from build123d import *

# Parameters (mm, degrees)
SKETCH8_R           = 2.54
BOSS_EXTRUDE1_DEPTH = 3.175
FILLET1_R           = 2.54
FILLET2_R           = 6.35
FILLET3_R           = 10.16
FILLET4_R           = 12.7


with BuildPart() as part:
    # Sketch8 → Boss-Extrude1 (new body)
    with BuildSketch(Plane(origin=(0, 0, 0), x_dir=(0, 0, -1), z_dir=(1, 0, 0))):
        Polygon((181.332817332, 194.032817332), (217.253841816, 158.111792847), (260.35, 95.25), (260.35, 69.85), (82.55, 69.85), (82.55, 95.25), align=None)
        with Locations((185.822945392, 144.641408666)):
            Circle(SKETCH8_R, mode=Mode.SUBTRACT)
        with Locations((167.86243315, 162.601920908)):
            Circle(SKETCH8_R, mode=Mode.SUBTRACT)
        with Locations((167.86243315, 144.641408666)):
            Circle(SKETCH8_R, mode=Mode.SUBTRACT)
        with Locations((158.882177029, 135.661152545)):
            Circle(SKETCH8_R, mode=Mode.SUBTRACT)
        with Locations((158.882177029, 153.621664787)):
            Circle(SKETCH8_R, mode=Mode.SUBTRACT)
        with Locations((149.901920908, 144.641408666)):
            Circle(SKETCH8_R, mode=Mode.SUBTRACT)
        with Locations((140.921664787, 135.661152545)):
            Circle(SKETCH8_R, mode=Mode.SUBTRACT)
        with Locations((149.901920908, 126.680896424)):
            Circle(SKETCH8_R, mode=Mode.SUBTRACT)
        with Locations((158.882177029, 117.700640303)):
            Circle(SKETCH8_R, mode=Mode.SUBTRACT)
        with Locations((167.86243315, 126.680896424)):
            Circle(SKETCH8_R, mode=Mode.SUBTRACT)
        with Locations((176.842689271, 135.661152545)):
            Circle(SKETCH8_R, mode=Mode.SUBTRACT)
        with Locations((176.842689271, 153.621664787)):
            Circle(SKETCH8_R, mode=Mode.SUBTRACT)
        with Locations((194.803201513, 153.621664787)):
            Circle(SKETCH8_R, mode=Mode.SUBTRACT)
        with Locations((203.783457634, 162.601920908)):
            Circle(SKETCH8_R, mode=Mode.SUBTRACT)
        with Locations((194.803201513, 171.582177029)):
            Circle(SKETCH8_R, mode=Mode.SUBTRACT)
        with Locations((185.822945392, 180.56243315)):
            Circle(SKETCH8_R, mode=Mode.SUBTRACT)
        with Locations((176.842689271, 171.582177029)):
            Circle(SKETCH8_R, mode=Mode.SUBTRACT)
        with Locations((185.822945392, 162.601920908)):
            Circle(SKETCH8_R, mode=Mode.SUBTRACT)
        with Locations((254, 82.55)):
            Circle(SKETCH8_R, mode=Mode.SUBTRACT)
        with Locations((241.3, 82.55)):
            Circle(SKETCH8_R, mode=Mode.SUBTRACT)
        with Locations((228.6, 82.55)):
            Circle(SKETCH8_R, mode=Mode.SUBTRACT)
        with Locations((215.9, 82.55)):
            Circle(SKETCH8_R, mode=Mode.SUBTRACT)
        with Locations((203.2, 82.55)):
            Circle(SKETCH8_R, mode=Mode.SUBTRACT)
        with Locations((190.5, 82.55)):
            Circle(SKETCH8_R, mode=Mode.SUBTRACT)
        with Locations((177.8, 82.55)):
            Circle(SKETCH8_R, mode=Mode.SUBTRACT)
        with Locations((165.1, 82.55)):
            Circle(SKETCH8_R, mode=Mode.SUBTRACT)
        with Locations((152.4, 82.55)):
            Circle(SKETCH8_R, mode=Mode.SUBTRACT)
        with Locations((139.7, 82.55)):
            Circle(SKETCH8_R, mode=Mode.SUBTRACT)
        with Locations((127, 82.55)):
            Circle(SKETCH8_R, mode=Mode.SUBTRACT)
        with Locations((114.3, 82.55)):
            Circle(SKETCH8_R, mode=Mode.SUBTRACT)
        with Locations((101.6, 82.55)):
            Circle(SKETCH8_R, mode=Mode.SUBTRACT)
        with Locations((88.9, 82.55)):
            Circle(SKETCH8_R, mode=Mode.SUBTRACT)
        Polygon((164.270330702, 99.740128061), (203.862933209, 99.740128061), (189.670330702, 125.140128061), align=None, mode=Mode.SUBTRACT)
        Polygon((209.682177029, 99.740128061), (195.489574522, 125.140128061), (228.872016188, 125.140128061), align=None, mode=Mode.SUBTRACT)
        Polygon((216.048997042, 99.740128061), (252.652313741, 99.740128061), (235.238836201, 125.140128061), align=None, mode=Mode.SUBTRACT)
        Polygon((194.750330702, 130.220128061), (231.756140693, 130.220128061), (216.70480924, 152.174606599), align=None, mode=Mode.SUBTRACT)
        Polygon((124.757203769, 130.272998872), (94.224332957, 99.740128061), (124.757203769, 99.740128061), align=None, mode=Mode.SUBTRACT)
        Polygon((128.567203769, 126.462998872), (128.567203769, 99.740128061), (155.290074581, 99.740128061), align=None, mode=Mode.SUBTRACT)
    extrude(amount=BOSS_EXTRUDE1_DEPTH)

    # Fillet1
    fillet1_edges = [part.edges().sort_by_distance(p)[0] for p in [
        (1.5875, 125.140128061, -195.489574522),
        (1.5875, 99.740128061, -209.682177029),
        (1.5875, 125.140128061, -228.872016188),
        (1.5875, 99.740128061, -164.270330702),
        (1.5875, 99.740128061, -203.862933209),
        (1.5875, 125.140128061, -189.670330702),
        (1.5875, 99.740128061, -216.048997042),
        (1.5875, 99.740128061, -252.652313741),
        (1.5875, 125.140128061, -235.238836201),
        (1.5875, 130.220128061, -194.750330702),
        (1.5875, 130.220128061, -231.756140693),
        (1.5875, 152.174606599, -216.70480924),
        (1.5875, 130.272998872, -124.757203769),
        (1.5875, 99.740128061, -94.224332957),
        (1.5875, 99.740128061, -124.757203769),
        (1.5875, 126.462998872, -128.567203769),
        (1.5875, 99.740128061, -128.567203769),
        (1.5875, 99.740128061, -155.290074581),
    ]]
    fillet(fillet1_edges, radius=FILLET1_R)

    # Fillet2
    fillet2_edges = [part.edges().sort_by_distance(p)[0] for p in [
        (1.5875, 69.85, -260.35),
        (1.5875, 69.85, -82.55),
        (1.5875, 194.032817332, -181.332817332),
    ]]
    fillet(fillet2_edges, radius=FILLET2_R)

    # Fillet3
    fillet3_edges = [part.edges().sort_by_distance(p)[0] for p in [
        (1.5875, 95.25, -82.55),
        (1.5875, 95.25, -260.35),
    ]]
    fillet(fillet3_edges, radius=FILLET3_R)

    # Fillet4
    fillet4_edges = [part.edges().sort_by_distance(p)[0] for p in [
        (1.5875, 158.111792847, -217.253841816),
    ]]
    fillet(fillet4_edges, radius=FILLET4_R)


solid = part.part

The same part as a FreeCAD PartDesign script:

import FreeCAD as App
import Part
import Sketcher
Q = App.Units.Quantity


def edges_at(feature, points):
    """Names of the edges that pass closest to the given points."""
    edges = feature.Shape.Edges
    near = lambda p: min(range(len(edges)), key=lambda i: edges[i].distToShape(Part.Vertex(*p))[0])
    return sorted({f"Edge{near(p) + 1}" for p in points})

doc = App.newDocument("Part")
body = doc.addObject("PartDesign::Body", "Body")

sketch1 = body.newObject("Sketcher::SketchObject", "Sketch")
sketch1.AttachmentSupport = (doc.getObject("YZ_Plane"), [""])
sketch1.MapMode = "FlatFace"
sketch1.addGeometry(Part.LineSegment(App.Vector(158.1, -217.3, 0), App.Vector(194, -181.3, 0)), False)
sketch1.addGeometry(Part.LineSegment(App.Vector(194, -181.3, 0), App.Vector(95.2, -82.5, 0)), False)
sketch1.addGeometry(Part.LineSegment(App.Vector(95.2, -82.5, 0), App.Vector(69.8, -82.5, 0)), False)
sketch1.addGeometry(Part.LineSegment(App.Vector(69.8, -82.5, 0), App.Vector(69.8, -260.4, 0)), False)
sketch1.addGeometry(Part.LineSegment(App.Vector(69.8, -260.4, 0), App.Vector(95.2, -260.4, 0)), False)
sketch1.addGeometry(Part.LineSegment(App.Vector(95.2, -260.4, 0), App.Vector(158.1, -217.3, 0)), False)
sketch1.addGeometry(Part.Circle(App.Vector(82.5, -254, 0), App.Vector(0, 0, 1), 2.5), False)
sketch1.addGeometry(Part.Circle(App.Vector(82.5, -241.3, 0), App.Vector(0, 0, 1), 2.5), False)
sketch1.addGeometry(Part.Circle(App.Vector(82.5, -228.6, 0), App.Vector(0, 0, 1), 2.5), False)
sketch1.addGeometry(Part.Circle(App.Vector(82.5, -215.9, 0), App.Vector(0, 0, 1), 2.5), False)
sketch1.addGeometry(Part.Circle(App.Vector(82.5, -203.2, 0), App.Vector(0, 0, 1), 2.5), False)
sketch1.addGeometry(Part.Circle(App.Vector(82.5, -190.5, 0), App.Vector(0, 0, 1), 2.5), False)
sketch1.addGeometry(Part.Circle(App.Vector(82.5, -177.8, 0), App.Vector(0, 0, 1), 2.5), False)
sketch1.addGeometry(Part.LineSegment(App.Vector(99.7, -216, 0), App.Vector(125.1, -235.2, 0)), False)
sketch1.addGeometry(Part.LineSegment(App.Vector(125.1, -235.2, 0), App.Vector(99.7, -252.7, 0)), False)
sketch1.addGeometry(Part.LineSegment(App.Vector(99.7, -252.7, 0), App.Vector(99.7, -216, 0)), False)
sketch1.addGeometry(Part.LineSegment(App.Vector(99.7, -209.7, 0), App.Vector(125.1, -195.5, 0)), False)
sketch1.addGeometry(Part.LineSegment(App.Vector(125.1, -195.5, 0), App.Vector(125.1, -228.9, 0)), False)
sketch1.addGeometry(Part.LineSegment(App.Vector(125.1, -228.9, 0), App.Vector(99.7, -209.7, 0)), False)
sketch1.addGeometry(Part.LineSegment(App.Vector(99.7, -164.3, 0), App.Vector(125.1, -189.7, 0)), False)
sketch1.addGeometry(Part.LineSegment(App.Vector(125.1, -189.7, 0), App.Vector(99.7, -203.9, 0)), False)
sketch1.addGeometry(Part.LineSegment(App.Vector(99.7, -203.9, 0), App.Vector(99.7, -164.3, 0)), False)
sketch1.addGeometry(Part.Circle(App.Vector(82.5, -165.1, 0), App.Vector(0, 0, 1), 2.5), False)
sketch1.addGeometry(Part.Circle(App.Vector(82.5, -152.4, 0), App.Vector(0, 0, 1), 2.5), False)
sketch1.addGeometry(Part.Circle(App.Vector(82.5, -139.7, 0), App.Vector(0, 0, 1), 2.5), False)
sketch1.addGeometry(Part.Circle(App.Vector(82.5, -127, 0), App.Vector(0, 0, 1), 2.5), False)
sketch1.addGeometry(Part.Circle(App.Vector(82.5, -114.3, 0), App.Vector(0, 0, 1), 2.5), False)
sketch1.addGeometry(Part.Circle(App.Vector(82.5, -101.6, 0), App.Vector(0, 0, 1), 2.5), False)
sketch1.addGeometry(Part.Circle(App.Vector(82.5, -88.9, 0), App.Vector(0, 0, 1), 2.5), False)
sketch1.addGeometry(Part.Circle(App.Vector(117.7, -158.9, 0), App.Vector(0, 0, 1), 2.5), False)
sketch1.addGeometry(Part.LineSegment(App.Vector(126.5, -128.6, 0), App.Vector(99.7, -155.3, 0)), False)
sketch1.addGeometry(Part.LineSegment(App.Vector(99.7, -155.3, 0), App.Vector(99.7, -128.6, 0)), False)
sketch1.addGeometry(Part.LineSegment(App.Vector(99.7, -128.6, 0), App.Vector(126.5, -128.6, 0)), False)
sketch1.addGeometry(Part.Circle(App.Vector(126.7, -167.9, 0), App.Vector(0, 0, 1), 2.5), False)
sketch1.addGeometry(Part.Circle(App.Vector(126.7, -149.9, 0), App.Vector(0, 0, 1), 2.5), False)
sketch1.addGeometry(Part.LineSegment(App.Vector(130.3, -124.8, 0), App.Vector(99.7, -124.8, 0)), False)
sketch1.addGeometry(Part.LineSegment(App.Vector(99.7, -124.8, 0), App.Vector(99.7, -94.2, 0)), False)
sketch1.addGeometry(Part.LineSegment(App.Vector(99.7, -94.2, 0), App.Vector(130.3, -124.8, 0)), False)
sketch1.addGeometry(Part.LineSegment(App.Vector(130.2, -194.8, 0), App.Vector(152.2, -216.7, 0)), False)
sketch1.addGeometry(Part.LineSegment(App.Vector(152.2, -216.7, 0), App.Vector(130.2, -231.8, 0)), False)
sketch1.addGeometry(Part.LineSegment(App.Vector(130.2, -231.8, 0), App.Vector(130.2, -194.8, 0)), False)
sketch1.addGeometry(Part.Circle(App.Vector(135.7, -176.8, 0), App.Vector(0, 0, 1), 2.5), False)
sketch1.addGeometry(Part.Circle(App.Vector(153.6, -194.8, 0), App.Vector(0, 0, 1), 2.5), False)
sketch1.addGeometry(Part.Circle(App.Vector(144.6, -185.8, 0), App.Vector(0, 0, 1), 2.5), False)
sketch1.addGeometry(Part.Circle(App.Vector(153.6, -176.8, 0), App.Vector(0, 0, 1), 2.5), False)
sketch1.addGeometry(Part.Circle(App.Vector(162.6, -203.8, 0), App.Vector(0, 0, 1), 2.5), False)
sketch1.addGeometry(Part.Circle(App.Vector(162.6, -185.8, 0), App.Vector(0, 0, 1), 2.5), False)
sketch1.addGeometry(Part.Circle(App.Vector(171.6, -194.8, 0), App.Vector(0, 0, 1), 2.5), False)
sketch1.addGeometry(Part.Circle(App.Vector(171.6, -176.8, 0), App.Vector(0, 0, 1), 2.5), False)
sketch1.addGeometry(Part.Circle(App.Vector(180.6, -185.8, 0), App.Vector(0, 0, 1), 2.5), False)
sketch1.addGeometry(Part.Circle(App.Vector(135.7, -158.9, 0), App.Vector(0, 0, 1), 2.5), False)
sketch1.addGeometry(Part.Circle(App.Vector(135.7, -140.9, 0), App.Vector(0, 0, 1), 2.5), False)
sketch1.addGeometry(Part.Circle(App.Vector(144.6, -167.9, 0), App.Vector(0, 0, 1), 2.5), False)
sketch1.addGeometry(Part.Circle(App.Vector(153.6, -158.9, 0), App.Vector(0, 0, 1), 2.5), False)
sketch1.addGeometry(Part.Circle(App.Vector(144.6, -149.9, 0), App.Vector(0, 0, 1), 2.5), False)
sketch1.addGeometry(Part.Circle(App.Vector(162.6, -167.9, 0), App.Vector(0, 0, 1), 2.5), False)
sketch1.addConstraint(Sketcher.Constraint("Coincident", 0, 2, 1, 1))
sketch1.addConstraint(Sketcher.Constraint("Coincident", 1, 2, 2, 1))
sketch1.addConstraint(Sketcher.Constraint("Coincident", 2, 2, 3, 1))
sketch1.addConstraint(Sketcher.Constraint("Coincident", 3, 2, 4, 1))
sketch1.addConstraint(Sketcher.Constraint("Coincident", 4, 2, 5, 1))
sketch1.addConstraint(Sketcher.Constraint("Coincident", 5, 2, 0, 1))
sketch1.addConstraint(Sketcher.Constraint("Coincident", 13, 2, 14, 1))
sketch1.addConstraint(Sketcher.Constraint("Coincident", 14, 2, 15, 1))
sketch1.addConstraint(Sketcher.Constraint("Coincident", 15, 2, 13, 1))
sketch1.addConstraint(Sketcher.Constraint("Coincident", 16, 2, 17, 1))
sketch1.addConstraint(Sketcher.Constraint("Coincident", 17, 2, 18, 1))
sketch1.addConstraint(Sketcher.Constraint("Coincident", 18, 2, 16, 1))
sketch1.addConstraint(Sketcher.Constraint("Coincident", 19, 2, 20, 1))
sketch1.addConstraint(Sketcher.Constraint("Coincident", 20, 2, 21, 1))
sketch1.addConstraint(Sketcher.Constraint("Coincident", 21, 2, 19, 1))
sketch1.addConstraint(Sketcher.Constraint("Coincident", 30, 2, 31, 1))
sketch1.addConstraint(Sketcher.Constraint("Coincident", 31, 2, 32, 1))
sketch1.addConstraint(Sketcher.Constraint("Coincident", 32, 2, 30, 1))
sketch1.addConstraint(Sketcher.Constraint("Coincident", 35, 2, 36, 1))
sketch1.addConstraint(Sketcher.Constraint("Coincident", 36, 2, 37, 1))
sketch1.addConstraint(Sketcher.Constraint("Coincident", 37, 2, 35, 1))
sketch1.addConstraint(Sketcher.Constraint("Coincident", 38, 2, 39, 1))
sketch1.addConstraint(Sketcher.Constraint("Coincident", 39, 2, 40, 1))
sketch1.addConstraint(Sketcher.Constraint("Coincident", 40, 2, 38, 1))
sketch1.addConstraint(Sketcher.Constraint("Horizontal", 2))
sketch1.addConstraint(Sketcher.Constraint("Vertical", 3))
sketch1.addConstraint(Sketcher.Constraint("Horizontal", 4))
sketch1.addConstraint(Sketcher.Constraint("Vertical", 15))
sketch1.addConstraint(Sketcher.Constraint("Vertical", 17))
sketch1.addConstraint(Sketcher.Constraint("Vertical", 21))
sketch1.addConstraint(Sketcher.Constraint("Vertical", 31))
sketch1.addConstraint(Sketcher.Constraint("Horizontal", 32))
sketch1.addConstraint(Sketcher.Constraint("Horizontal", 35))
sketch1.addConstraint(Sketcher.Constraint("Vertical", 36))
sketch1.addConstraint(Sketcher.Constraint("Vertical", 40))
sketch1.addConstraint(Sketcher.Constraint("Equal", 6, 7))
sketch1.addConstraint(Sketcher.Constraint("Equal", 7, 8))
sketch1.addConstraint(Sketcher.Constraint("Equal", 8, 9))
sketch1.addConstraint(Sketcher.Constraint("Equal", 9, 10))
sketch1.addConstraint(Sketcher.Constraint("Equal", 10, 11))
sketch1.addConstraint(Sketcher.Constraint("Equal", 11, 12))
sketch1.addConstraint(Sketcher.Constraint("Equal", 12, 22))
sketch1.addConstraint(Sketcher.Constraint("Equal", 22, 23))
sketch1.addConstraint(Sketcher.Constraint("Equal", 23, 24))
sketch1.addConstraint(Sketcher.Constraint("Equal", 24, 25))
sketch1.addConstraint(Sketcher.Constraint("Equal", 25, 26))
sketch1.addConstraint(Sketcher.Constraint("Equal", 26, 27))
sketch1.addConstraint(Sketcher.Constraint("Equal", 27, 28))
sketch1.addConstraint(Sketcher.Constraint("Equal", 28, 29))
sketch1.addConstraint(Sketcher.Constraint("Equal", 29, 33))
sketch1.addConstraint(Sketcher.Constraint("Equal", 33, 34))
sketch1.addConstraint(Sketcher.Constraint("Equal", 34, 41))
sketch1.addConstraint(Sketcher.Constraint("Equal", 41, 42))
sketch1.addConstraint(Sketcher.Constraint("Equal", 42, 43))
sketch1.addConstraint(Sketcher.Constraint("Equal", 43, 44))
sketch1.addConstraint(Sketcher.Constraint("Equal", 44, 45))
sketch1.addConstraint(Sketcher.Constraint("Equal", 45, 46))
sketch1.addConstraint(Sketcher.Constraint("Equal", 46, 47))
sketch1.addConstraint(Sketcher.Constraint("Equal", 47, 48))
sketch1.addConstraint(Sketcher.Constraint("Equal", 48, 49))
sketch1.addConstraint(Sketcher.Constraint("Equal", 49, 50))
sketch1.addConstraint(Sketcher.Constraint("Equal", 50, 51))
sketch1.addConstraint(Sketcher.Constraint("Equal", 51, 52))
sketch1.addConstraint(Sketcher.Constraint("Equal", 52, 53))
sketch1.addConstraint(Sketcher.Constraint("Equal", 53, 54))
sketch1.addConstraint(Sketcher.Constraint("Equal", 54, 55))
sketch1.addConstraint(Sketcher.Constraint("Perpendicular", 0, 1))
sketch1.addConstraint(Sketcher.Constraint("Parallel", 5, 14))
sketch1.addConstraint(Sketcher.Constraint("Parallel", 13, 18))
sketch1.addConstraint(Sketcher.Constraint("Parallel", 1, 19))
sketch1.addConstraint(Sketcher.Constraint("Parallel", 16, 20))
sketch1.addConstraint(Sketcher.Constraint("Perpendicular", 19, 30))
sketch1.addConstraint(Sketcher.Constraint("Perpendicular", 30, 37))
sketch1.addConstraint(Sketcher.Constraint("Parallel", 37, 38))
sketch1.addConstraint(Sketcher.Constraint("Parallel", 14, 39))
sketch1.addConstraint(Sketcher.Constraint("Horizontal", 41, 3, 44, 3))
sketch1.addConstraint(Sketcher.Constraint("Horizontal", 43, 3, 46, 3))
sketch1.addConstraint(Sketcher.Constraint("Horizontal", 42, 3, 47, 3))
sketch1.addConstraint(Sketcher.Constraint("Horizontal", 44, 3, 48, 3))
sketch1.addConstraint(Sketcher.Constraint("Horizontal", 46, 3, 49, 3))
sketch1.addConstraint(Sketcher.Constraint("Horizontal", 29, 3, 50, 3))
sketch1.addConstraint(Sketcher.Constraint("Horizontal", 33, 3, 52, 3))
sketch1.addConstraint(Sketcher.Constraint("Horizontal", 50, 3, 53, 3))
sketch1.addConstraint(Sketcher.Constraint("Horizontal", 34, 3, 54, 3))
sketch1.addConstraint(Sketcher.Constraint("Horizontal", 52, 3, 55, 3))
sketch1.addConstraint(Sketcher.Constraint("Vertical", 6, 3, 7, 3))
sketch1.addConstraint(Sketcher.Constraint("Vertical", 7, 3, 8, 3))
sketch1.addConstraint(Sketcher.Constraint("Vertical", 8, 3, 9, 3))
sketch1.addConstraint(Sketcher.Constraint("Vertical", 9, 3, 10, 3))
sketch1.addConstraint(Sketcher.Constraint("Vertical", 10, 3, 11, 3))
sketch1.addConstraint(Sketcher.Constraint("Vertical", 11, 3, 12, 3))
sketch1.addConstraint(Sketcher.Constraint("Vertical", 12, 3, 22, 3))
sketch1.addConstraint(Sketcher.Constraint("Vertical", 22, 3, 23, 3))
sketch1.addConstraint(Sketcher.Constraint("Vertical", 23, 3, 24, 3))
sketch1.addConstraint(Sketcher.Constraint("Vertical", 24, 3, 25, 3))
sketch1.addConstraint(Sketcher.Constraint("Vertical", 25, 3, 26, 3))
sketch1.addConstraint(Sketcher.Constraint("Vertical", 26, 3, 27, 3))
sketch1.addConstraint(Sketcher.Constraint("Vertical", 27, 3, 28, 3))
sketch1.addConstraint(Sketcher.Constraint("Vertical", 33, 3, 34, 3))
sketch1.addConstraint(Sketcher.Constraint("Vertical", 42, 3, 44, 3))
sketch1.addConstraint(Sketcher.Constraint("Vertical", 45, 3, 46, 3))
sketch1.addConstraint(Sketcher.Constraint("Vertical", 47, 3, 48, 3))
sketch1.addConstraint(Sketcher.Constraint("Vertical", 41, 3, 50, 3))
sketch1.addConstraint(Sketcher.Constraint("Vertical", 50, 3, 51, 3))
sketch1.addConstraint(Sketcher.Constraint("Vertical", 43, 3, 52, 3))
sketch1.addConstraint(Sketcher.Constraint("Vertical", 44, 3, 53, 3))
sketch1.addConstraint(Sketcher.Constraint("Vertical", 52, 3, 54, 3))
sketch1.addConstraint(Sketcher.Constraint("Vertical", 46, 3, 55, 3))
sketch1.addConstraint(Sketcher.Constraint("Vertical", 1, 2, 4, 2))
sketch1.addConstraint(Sketcher.Constraint("Vertical", 13, 2, 16, 2))
sketch1.addConstraint(Sketcher.Constraint("Vertical", 15, 2, 18, 2))
sketch1.addConstraint(Sketcher.Constraint("Vertical", 17, 2, 19, 2))
sketch1.addConstraint(Sketcher.Constraint("Vertical", 18, 2, 20, 2))
sketch1.addConstraint(Sketcher.Constraint("Vertical", 21, 2, 30, 2))
sketch1.addConstraint(Sketcher.Constraint("Vertical", 31, 2, 35, 2))
sketch1.addConstraint(Sketcher.Constraint("Equal", 32, 31))
sketch1.addConstraint(Sketcher.Constraint("Diameter", 6, Q("0.2 in")))
sketch1.addConstraint(Sketcher.Constraint("DistanceX", 2, 2, 2, 1, Q("1 in")))
sketch1.addConstraint(Sketcher.Constraint("DistanceY", 3, 2, 3, 1, Q("7 in")))
sketch1.addConstraint(Sketcher.Constraint("Distance", 0, Q("2 in")))
sketch1.addConstraint(Sketcher.Constraint("DistanceY", 6, 3, -1, 1, Q("10 in")))
sketch1.addConstraint(Sketcher.Constraint("DistanceY", 8, 3, -1, 1, Q("9 in")))
sketch1.addConstraint(Sketcher.Constraint("DistanceY", 10, 3, -1, 1, Q("8 in")))
sketch1.addConstraint(Sketcher.Constraint("DistanceY", 12, 3, -1, 1, Q("7 in")))
sketch1.addConstraint(Sketcher.Constraint("DistanceY", 23, 3, -1, 1, Q("6 in")))
sketch1.addConstraint(Sketcher.Constraint("DistanceY", 25, 3, -1, 1, Q("5 in")))
sketch1.addConstraint(Sketcher.Constraint("DistanceY", 27, 3, -1, 1, Q("4 in")))
sketch1.addConstraint(Sketcher.Constraint("DistanceY", 7, 3, 9, 3, Q("1 in")))
sketch1.addConstraint(Sketcher.Constraint("DistanceY", 9, 3, 11, 3, Q("1 in")))
sketch1.addConstraint(Sketcher.Constraint("DistanceY", 11, 3, 22, 3, Q("1 in")))
sketch1.addConstraint(Sketcher.Constraint("DistanceY", 22, 3, 24, 3, Q("1 in")))
sketch1.addConstraint(Sketcher.Constraint("DistanceY", 24, 3, 26, 3, Q("1 in")))
sketch1.addConstraint(Sketcher.Constraint("DistanceY", 26, 3, 28, 3, Q("1 in")))
sketch1.addConstraint(Sketcher.Constraint("DistanceX", 14, 2, 13, 2, Q("1 in")))
sketch1.addConstraint(Sketcher.Constraint("Distance", 1, Q("5.5 in")))
sketch1.addConstraint(Sketcher.Constraint("Distance", 37, Q("1.7 in")))
sketch1.addConstraint(Sketcher.Constraint("DistanceY", 7, 3, -1, 1, Q("9.5 in")))
sketch1.addConstraint(Sketcher.Constraint("DistanceX", 28, 3, 1, 2, Q("0.5 in")))
sketch1.addConstraint(Sketcher.Constraint("DistanceX", 17, 2, 39, 2, Q("0.2 in")))
sketch1.addConstraint(Sketcher.Constraint("DistanceY", 40, 2, 19, 2, Q("0.2 in")))
sketch1.addConstraint(Sketcher.Constraint("DistanceX", -1, 1, 6, 3, Q("3.25 in")))
sketch1.addConstraint(Sketcher.Constraint("DistanceY", 1, 2, -1, 1, Q("3.25 in")))
sketch1.addConstraint(Sketcher.Constraint("DistanceY", 31, 2, 35, 2, Q("0.15 in")))
sketch1.addConstraint(Sketcher.Constraint("DistanceX", 32, 2, 37, 2, Q("0.15 in")))
sketch1.addConstraint(Sketcher.Constraint("Distance", 13, 31.8341))
sketch1.addConstraint(Sketcher.Constraint("DistanceY", 17, 2, 17, 1, 33.382442))
sketch1.addConstraint(Sketcher.Constraint("DistanceY", 40, 1, 40, 2, 37.00581))
sketch1.addConstraint(Sketcher.Constraint("DistanceY", 42, 3, -1, 1, 194.803202))
sketch1.addConstraint(Sketcher.Constraint("DistanceX", -1, 1, 32, 2, 126.462999))
sketch1.addConstraint(Sketcher.Constraint("DistanceY", 39, 2, 5, 2, 14.502299))
sketch1.addConstraint(Sketcher.Constraint("DistanceX", -1, 1, 29, 3, 117.70064))
sketch1.addConstraint(Sketcher.Constraint("DistanceY", 34, 3, -1, 1, 149.901921))
sketch1.addConstraint(Sketcher.Constraint("DistanceY", 41, 3, -1, 1, 176.842689))
sketch1.addConstraint(Sketcher.Constraint("DistanceX", -1, 1, 43, 3, 144.641409))
sketch1.addConstraint(Sketcher.Constraint("DistanceX", -1, 1, 45, 3, 162.601921))
sketch1.addConstraint(Sketcher.Constraint("DistanceX", 33, 3, 42, 3, 26.940768))
sketch1.addConstraint(Sketcher.Constraint("DistanceY", 42, 3, 33, 3, 26.940768))
sketch1.addConstraint(Sketcher.Constraint("DistanceY", 43, 3, 29, 3, 26.940768))
sketch1.addConstraint(Sketcher.Constraint("DistanceY", 45, 3, 44, 3, 26.940768))
sketch1.addConstraint(Sketcher.Constraint("DistanceX", 41, 3, 45, 3, 26.940768))
sketch1.addConstraint(Sketcher.Constraint("DistanceX", 43, 3, 47, 3, 26.940768))
sketch1.addConstraint(Sketcher.Constraint("DistanceX", 42, 3, 49, 3, 26.940768))
sketch1.addConstraint(Sketcher.Constraint("DistanceY", 33, 3, 51, 3, 26.940768))
sketch1.addConstraint(Sketcher.Constraint("DistanceY", 49, 3, 0, 2, 4.490128))
sketch1.addConstraint(Sketcher.Constraint("DistanceX", 42, 3, 5, 2, 4.490128))
sketch1.addConstraint(Sketcher.Constraint("DistanceY", 16, 2, 43, 3, 9.666629))
sketch1.addConstraint(Sketcher.Constraint("DistanceY", 13, 2, 17, 2, 6.36682))
sketch1.addConstraint(Sketcher.Constraint("DistanceY", 51, 3, 32, 2, 12.354461))
pad1 = body.newObject("PartDesign::Pad", "Pad")
pad1.Profile = sketch1
pad1.Length = Q("0.125 in")
doc.recompute()

fillet = body.newObject("PartDesign::Fillet", "Fillet")
fillet.Base = (pad1, edges_at(pad1, [
    (1.587, 125.14, -195.49),
    (1.587, 99.74, -209.682),
    (1.587, 125.14, -228.872),
    (1.587, 99.74, -164.27),
    (1.587, 99.74, -203.863),
    (1.587, 125.14, -189.67),
    (1.587, 99.74, -216.049),
    (1.587, 99.74, -252.652),
    (1.587, 125.14, -235.239),
    (1.587, 130.22, -194.75),
    (1.587, 130.22, -231.756),
    (1.587, 152.175, -216.705),
    (1.587, 130.273, -124.757),
    (1.587, 99.74, -94.224),
    (1.587, 99.74, -124.757),
    (1.587, 126.463, -128.567),
    (1.587, 99.74, -128.567),
    (1.587, 99.74, -155.29),
]))
fillet.Radius = Q("0.1 in")
doc.recompute()

fillet2 = body.newObject("PartDesign::Fillet", "Fillet001")
fillet2.Base = (fillet, edges_at(fillet, [(1.587, 69.85, -260.35), (1.587, 69.85, -82.55), (1.587, 194.033, -181.333)]))
fillet2.Radius = Q("0.25 in")
doc.recompute()

fillet3 = body.newObject("PartDesign::Fillet", "Fillet002")
fillet3.Base = (fillet2, edges_at(fillet2, [(1.587, 95.25, -82.55), (1.587, 95.25, -260.35)]))
fillet3.Radius = Q("0.4 in")
doc.recompute()

fillet4 = body.newObject("PartDesign::Fillet", "Fillet003")
fillet4.Base = (fillet3, edges_at(fillet3, [(1.587, 158.112, -217.254)]))
fillet4.Radius = Q("0.5 in")

doc.recompute()
